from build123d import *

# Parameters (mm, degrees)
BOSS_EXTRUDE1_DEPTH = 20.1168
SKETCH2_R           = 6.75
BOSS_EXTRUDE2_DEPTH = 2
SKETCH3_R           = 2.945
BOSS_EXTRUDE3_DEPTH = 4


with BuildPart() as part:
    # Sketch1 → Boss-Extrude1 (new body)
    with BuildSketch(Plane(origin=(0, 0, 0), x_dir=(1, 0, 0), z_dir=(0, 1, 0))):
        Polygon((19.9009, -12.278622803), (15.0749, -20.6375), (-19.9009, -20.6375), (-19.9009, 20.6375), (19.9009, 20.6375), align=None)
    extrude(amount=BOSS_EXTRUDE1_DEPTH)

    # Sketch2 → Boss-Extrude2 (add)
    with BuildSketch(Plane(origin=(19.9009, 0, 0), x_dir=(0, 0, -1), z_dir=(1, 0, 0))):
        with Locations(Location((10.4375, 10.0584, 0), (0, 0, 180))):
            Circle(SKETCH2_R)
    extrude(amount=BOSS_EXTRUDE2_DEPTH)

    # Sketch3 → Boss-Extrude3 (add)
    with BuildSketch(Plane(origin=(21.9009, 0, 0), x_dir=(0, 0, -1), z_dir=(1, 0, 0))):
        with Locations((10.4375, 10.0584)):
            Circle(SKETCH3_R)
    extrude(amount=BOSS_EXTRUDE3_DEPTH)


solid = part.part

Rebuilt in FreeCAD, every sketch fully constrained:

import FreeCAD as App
import Part
import Sketcher
Q = App.Units.Quantity

doc = App.newDocument("Part")
params = doc.addObject("Spreadsheet::Sheet", "Params")
for row, (alias, value) in enumerate([
    ("sketch1_length", "0.38 in"),
    ("sketch1_width", "1.567 in"),
    ("sketch1_height", "1.625 in"),
    ("pad1_length", "0.792 in"),
    ("pad2_length", "2 mm"),
    ("pad3_length", "4 mm"),
], start=1):
    params.set(f"A{row}", alias)
    params.set(f"B{row}", "=" + value)
    params.setAlias(f"B{row}", alias)

body = doc.addObject("PartDesign::Body", "Body")

# Sketch on XZ plane
sketch1 = body.newObject("Sketcher::SketchObject", "Sketch")
sketch1.AttachmentSupport = (doc.getObject("XZ_Plane"), [""])
sketch1.MapMode = "FlatFace"
sketch1.addGeometry([
    Part.LineSegment(App.Vector(15, 21, 0), App.Vector(20, 12, 0)),  # 0
    Part.LineSegment(App.Vector(20, 12, 0), App.Vector(20, -21, 0)),  # 1
    Part.LineSegment(App.Vector(20, -21, 0), App.Vector(-20, -21, 0)),  # 2
    Part.LineSegment(App.Vector(-20, -21, 0), App.Vector(-20, 21, 0)),  # 3
    Part.LineSegment(App.Vector(-20, 21, 0), App.Vector(15, 21, 0)),  # 4
], False)
sketch1.addConstraint([
    Sketcher.Constraint("Coincident", 0, 2, 1, 1),
    Sketcher.Constraint("Coincident", 1, 2, 2, 1),
    Sketcher.Constraint("Coincident", 2, 2, 3, 1),
    Sketcher.Constraint("Coincident", 3, 2, 4, 1),
    Sketcher.Constraint("Coincident", 4, 2, 0, 1),
    Sketcher.Constraint("Vertical", 1),
    Sketcher.Constraint("Horizontal", 2),
    Sketcher.Constraint("Vertical", 3),
    Sketcher.Constraint("Horizontal", 4),
    Sketcher.Constraint("Symmetric", 1, 2, 3, 2, -1, 1),
    Sketcher.Constraint("Angle", 0, Q("-60 deg")),
    Sketcher.Constraint("Distance", 0, Q("0.38 in")),
    Sketcher.Constraint("DistanceX", 2, 2, 2, 1, Q("1.567 in")),
    Sketcher.Constraint("DistanceY", 3, 1, 3, 2, Q("1.625 in")),
])
sketch1.setExpression("Constraints[11]", "Params.sketch1_length")
sketch1.setExpression("Constraints[12]", "Params.sketch1_width")
sketch1.setExpression("Constraints[13]", "Params.sketch1_height")
pad1 = body.newObject("PartDesign::Pad", "Pad")
pad1.Profile = sketch1
pad1.setExpression("Length", "Params.pad1_length")
pad1.Reversed = True

# Sketch on YZ plane
sketch2 = body.newObject("Sketcher::SketchObject", "Sketch001")
sketch2.AttachmentSupport = (doc.getObject("YZ_Plane"), [""])
sketch2.MapMode = "FlatFace"
sketch2.AttachmentOffset = App.Placement(App.Vector(0, 0, 0.7835 * 25.4), App.Rotation())
sketch2.addGeometry(Part.Circle(App.Vector(10, -10, 0), App.Vector(0, 0, 1), 7), False)
sketch2.addConstraint([
    Sketcher.Constraint("Diameter", 0, Q("13.5 mm")),
    Sketcher.Constraint("DistanceX", -1, 1, 0, 3, Q("0.396 in")),
    Sketcher.Constraint("DistanceY", 0, 3, -1, 1, Q("10.4375 mm")),
])
pad2 = body.newObject("PartDesign::Pad", "Pad001")
pad2.Profile = sketch2
pad2.setExpression("Length", "Params.pad2_length")

# Sketch on YZ plane
sketch3 = body.newObject("Sketcher::SketchObject", "Sketch002")
sketch3.AttachmentSupport = (doc.getObject("YZ_Plane"), [""])
sketch3.MapMode = "FlatFace"
sketch3.AttachmentOffset = App.Placement(App.Vector(0, 0, 21.9009), App.Rotation())
sketch3.addGeometry(Part.Circle(App.Vector(10.1, -10.4, 0), App.Vector(0, 0, 1), 2.9), False)
sketch3.addConstraint([
    Sketcher.Constraint("Diameter", 0, Q("5.89 mm")),
    Sketcher.Constraint("DistanceX", -1, 1, 0, 3, Q("0.396 in")),
    Sketcher.Constraint("DistanceY", 0, 3, -1, 1, Q("10.4375 mm")),
])
pad3 = body.newObject("PartDesign::Pad", "Pad002")
pad3.Profile = sketch3
pad3.setExpression("Length", "Params.pad3_length")

doc.recompute()
